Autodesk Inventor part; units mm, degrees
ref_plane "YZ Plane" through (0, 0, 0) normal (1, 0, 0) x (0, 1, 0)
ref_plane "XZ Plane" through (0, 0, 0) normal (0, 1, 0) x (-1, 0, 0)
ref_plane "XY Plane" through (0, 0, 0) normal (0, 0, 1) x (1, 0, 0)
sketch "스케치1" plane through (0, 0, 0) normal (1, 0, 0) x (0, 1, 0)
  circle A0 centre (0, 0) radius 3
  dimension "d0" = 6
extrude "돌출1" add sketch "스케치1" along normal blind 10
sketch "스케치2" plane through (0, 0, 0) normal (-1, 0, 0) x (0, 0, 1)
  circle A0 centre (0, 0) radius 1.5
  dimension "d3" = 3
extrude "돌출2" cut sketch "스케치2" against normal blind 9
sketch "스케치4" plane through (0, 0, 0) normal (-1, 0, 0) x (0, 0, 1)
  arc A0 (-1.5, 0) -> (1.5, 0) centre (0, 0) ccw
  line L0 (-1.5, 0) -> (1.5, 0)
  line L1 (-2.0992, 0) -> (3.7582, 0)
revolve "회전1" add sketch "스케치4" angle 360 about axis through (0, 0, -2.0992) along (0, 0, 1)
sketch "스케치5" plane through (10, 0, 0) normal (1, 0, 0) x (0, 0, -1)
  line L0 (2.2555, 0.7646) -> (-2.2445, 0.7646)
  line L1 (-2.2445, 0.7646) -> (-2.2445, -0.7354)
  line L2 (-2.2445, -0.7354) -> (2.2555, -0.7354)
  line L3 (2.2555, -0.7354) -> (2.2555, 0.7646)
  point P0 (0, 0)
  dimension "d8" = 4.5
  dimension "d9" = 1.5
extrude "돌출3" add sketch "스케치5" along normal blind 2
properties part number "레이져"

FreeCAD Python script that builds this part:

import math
import FreeCAD as App
import Part
import Sketcher
from FreeCAD import Vector
Q = App.Units.Quantity


def add_polygon(sketch, points):
    """Adds a closed chain of lines whose ends are joined by coincident constraints."""
    first, n = sketch.GeometryCount, len(points)
    for a, b in zip(points, points[1:] + points[:1]):
        sketch.addGeometry(Part.LineSegment(App.Vector(*a, 0), App.Vector(*b, 0)), False)
    for i in range(n):
        sketch.addConstraint(Sketcher.Constraint("Coincident", first + i, 2, first + (i + 1) % n, 1))

doc = App.newDocument("Part")
body = doc.addObject("PartDesign::Body", "Body")
body.AllowCompound = True

# Sketch on YZ plane
sketch1 = body.newObject("Sketcher::SketchObject", "Sketch")
sketch1.AttachmentSupport = (doc.getObject("YZ_Plane"), [""])
sketch1.MapMode = "FlatFace"
sketch1.addGeometry(Part.Circle(Vector(0, 0, 0), Vector(0, 0, 1), 3), False)
sketch1.addConstraint([
    Sketcher.Constraint("Coincident", 0, 3, -1, 1),
    Sketcher.Constraint("Diameter", 0, Q("6 mm")),
])
pad1 = body.newObject("PartDesign::Pad", "Pad")
pad1.Profile = sketch1
pad1.Length = 10

# Sketch on YZ plane
sketch2 = body.newObject("Sketcher::SketchObject", "Sketch001")
sketch2.AttachmentSupport = (doc.getObject("YZ_Plane"), [""])
sketch2.MapMode = "FlatFace"
sketch2.addGeometry(Part.Circle(Vector(0, 0, 0), Vector(0, 0, 1), 1.5), False)
sketch2.addConstraint([
    Sketcher.Constraint("Coincident", 0, 3, -1, 1),
    Sketcher.Constraint("Diameter", 0, Q("3 mm")),
])
pocket1 = body.newObject("PartDesign::Pocket", "Pocket")
pocket1.Profile = sketch2
pocket1.Length = 9
pocket1.Reversed = True

# Sketch on YZ plane
sketch3 = body.newObject("Sketcher::SketchObject", "Sketch002")
sketch3.AttachmentSupport = (doc.getObject("YZ_Plane"), [""])
sketch3.MapMode = "FlatFace"
sketch3.addGeometry([
    Part.LineSegment(Vector(0, 1.5, 0), Vector(0, -1.5, 0)),
    Part.ArcOfCircle(Part.Circle(Vector(0, 0, 0), Vector(0, 0, 1), 1.5), math.radians(90), math.radians(270)),
], False)
sketch3.addConstraint([
    Sketcher.Constraint("Coincident", 0, 1, 1, 1),
    Sketcher.Constraint("Coincident", 1, 2, 0, 2),
    Sketcher.Constraint("Vertical", 0),
    Sketcher.Constraint("Coincident", 1, 3, -1, 1),
    Sketcher.Constraint("PointOnObject", 0, 1, -2),
    Sketcher.Constraint("Radius", 1, Q("1.5 mm")),
])
revolution = body.newObject("PartDesign::Revolution", "Revolution")
revolution.Profile = sketch3
revolution.ReferenceAxis = (sketch3, ["V_Axis"])
revolution.Angle = 360

# Sketch on YZ plane
sketch4 = body.newObject("Sketcher::SketchObject", "Sketch003")
sketch4.AttachmentSupport = (doc.getObject("YZ_Plane"), [""])
sketch4.MapMode = "FlatFace"
sketch4.AttachmentOffset = App.Placement(Vector(0, 0, 10), App.Rotation())
add_polygon(sketch4, [(-0.7, -2.3), (0.8, -2.3), (0.8, 2.2), (-0.7, 2.2)])  # lines 0-3
sketch4.addConstraint([
    Sketcher.Constraint("Horizontal", 0),
    Sketcher.Constraint("Vertical", 1),
    Sketcher.Constraint("Horizontal", 2),
    Sketcher.Constraint("Vertical", 3),
    Sketcher.Constraint("DistanceX", 0, 1, 0, 2, Q("1.5 mm")),
    Sketcher.Constraint("DistanceY", 1, 1, 1, 2, Q("4.5 mm")),
    Sketcher.Constraint("DistanceX", -1, 1, 0, 2, Q("0.7646 mm")),
    Sketcher.Constraint("DistanceY", 0, 2, -1, 1, Q("2.2555 mm")),
])
pad2 = body.newObject("PartDesign::Pad", "Pad001")
pad2.Profile = sketch4
pad2.Length = 2

doc.recompute()
